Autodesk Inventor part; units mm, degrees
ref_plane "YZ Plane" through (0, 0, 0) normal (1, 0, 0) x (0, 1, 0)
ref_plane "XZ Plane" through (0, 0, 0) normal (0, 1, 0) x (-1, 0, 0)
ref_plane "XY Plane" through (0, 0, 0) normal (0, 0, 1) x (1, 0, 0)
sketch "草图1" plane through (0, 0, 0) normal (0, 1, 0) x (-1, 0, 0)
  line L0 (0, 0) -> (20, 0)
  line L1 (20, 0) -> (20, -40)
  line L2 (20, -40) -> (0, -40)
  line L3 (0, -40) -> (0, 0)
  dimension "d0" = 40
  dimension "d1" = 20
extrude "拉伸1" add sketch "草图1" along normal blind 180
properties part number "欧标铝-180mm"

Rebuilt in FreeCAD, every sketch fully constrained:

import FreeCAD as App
import Part
import Sketcher

V = App.Vector
Q = App.Units.Quantity


def add_polygon(sketch, points):
    """Adds a closed chain of lines whose ends are joined by coincident constraints."""
    first, n = sketch.GeometryCount, len(points)
    for a, b in zip(points, points[1:] + points[:1]):
        sketch.addGeometry(Part.LineSegment(App.Vector(*a, 0), App.Vector(*b, 0)), False)
    for i in range(n):
        sketch.addConstraint(Sketcher.Constraint("Coincident", first + i, 2, first + (i + 1) % n, 1))

doc = App.newDocument("Part")
body = doc.addObject("PartDesign::Body", "Body")

# Sketch on XZ plane
sketch1 = body.newObject("Sketcher::SketchObject", "Sketch")
sketch1.AttachmentSupport = (doc.getObject("XZ_Plane"), [""])
sketch1.MapMode = "FlatFace"
add_polygon(sketch1, [(-20, 0), (0, 0), (0, -40), (-20, -40)])  # lines 0-3
sketch1.addConstraint(Sketcher.Constraint("Horizontal", 0))
sketch1.addConstraint(Sketcher.Constraint("Vertical", 1))
sketch1.addConstraint(Sketcher.Constraint("Horizontal", 2))
sketch1.addConstraint(Sketcher.Constraint("Vertical", 3))
sketch1.addConstraint(Sketcher.Constraint("Coincident", 0, 2, -1, 1))
sketch1.addConstraint(Sketcher.Constraint("DistanceX", 0, 1, 0, 2, Q("20 mm")))
sketch1.addConstraint(Sketcher.Constraint("DistanceY", 1, 2, 1, 1, Q("40 mm")))
pad1 = body.newObject("PartDesign::Pad", "Pad")
pad1.Profile = sketch1
pad1.Length = 180
pad1.Reversed = True

doc.recompute()
